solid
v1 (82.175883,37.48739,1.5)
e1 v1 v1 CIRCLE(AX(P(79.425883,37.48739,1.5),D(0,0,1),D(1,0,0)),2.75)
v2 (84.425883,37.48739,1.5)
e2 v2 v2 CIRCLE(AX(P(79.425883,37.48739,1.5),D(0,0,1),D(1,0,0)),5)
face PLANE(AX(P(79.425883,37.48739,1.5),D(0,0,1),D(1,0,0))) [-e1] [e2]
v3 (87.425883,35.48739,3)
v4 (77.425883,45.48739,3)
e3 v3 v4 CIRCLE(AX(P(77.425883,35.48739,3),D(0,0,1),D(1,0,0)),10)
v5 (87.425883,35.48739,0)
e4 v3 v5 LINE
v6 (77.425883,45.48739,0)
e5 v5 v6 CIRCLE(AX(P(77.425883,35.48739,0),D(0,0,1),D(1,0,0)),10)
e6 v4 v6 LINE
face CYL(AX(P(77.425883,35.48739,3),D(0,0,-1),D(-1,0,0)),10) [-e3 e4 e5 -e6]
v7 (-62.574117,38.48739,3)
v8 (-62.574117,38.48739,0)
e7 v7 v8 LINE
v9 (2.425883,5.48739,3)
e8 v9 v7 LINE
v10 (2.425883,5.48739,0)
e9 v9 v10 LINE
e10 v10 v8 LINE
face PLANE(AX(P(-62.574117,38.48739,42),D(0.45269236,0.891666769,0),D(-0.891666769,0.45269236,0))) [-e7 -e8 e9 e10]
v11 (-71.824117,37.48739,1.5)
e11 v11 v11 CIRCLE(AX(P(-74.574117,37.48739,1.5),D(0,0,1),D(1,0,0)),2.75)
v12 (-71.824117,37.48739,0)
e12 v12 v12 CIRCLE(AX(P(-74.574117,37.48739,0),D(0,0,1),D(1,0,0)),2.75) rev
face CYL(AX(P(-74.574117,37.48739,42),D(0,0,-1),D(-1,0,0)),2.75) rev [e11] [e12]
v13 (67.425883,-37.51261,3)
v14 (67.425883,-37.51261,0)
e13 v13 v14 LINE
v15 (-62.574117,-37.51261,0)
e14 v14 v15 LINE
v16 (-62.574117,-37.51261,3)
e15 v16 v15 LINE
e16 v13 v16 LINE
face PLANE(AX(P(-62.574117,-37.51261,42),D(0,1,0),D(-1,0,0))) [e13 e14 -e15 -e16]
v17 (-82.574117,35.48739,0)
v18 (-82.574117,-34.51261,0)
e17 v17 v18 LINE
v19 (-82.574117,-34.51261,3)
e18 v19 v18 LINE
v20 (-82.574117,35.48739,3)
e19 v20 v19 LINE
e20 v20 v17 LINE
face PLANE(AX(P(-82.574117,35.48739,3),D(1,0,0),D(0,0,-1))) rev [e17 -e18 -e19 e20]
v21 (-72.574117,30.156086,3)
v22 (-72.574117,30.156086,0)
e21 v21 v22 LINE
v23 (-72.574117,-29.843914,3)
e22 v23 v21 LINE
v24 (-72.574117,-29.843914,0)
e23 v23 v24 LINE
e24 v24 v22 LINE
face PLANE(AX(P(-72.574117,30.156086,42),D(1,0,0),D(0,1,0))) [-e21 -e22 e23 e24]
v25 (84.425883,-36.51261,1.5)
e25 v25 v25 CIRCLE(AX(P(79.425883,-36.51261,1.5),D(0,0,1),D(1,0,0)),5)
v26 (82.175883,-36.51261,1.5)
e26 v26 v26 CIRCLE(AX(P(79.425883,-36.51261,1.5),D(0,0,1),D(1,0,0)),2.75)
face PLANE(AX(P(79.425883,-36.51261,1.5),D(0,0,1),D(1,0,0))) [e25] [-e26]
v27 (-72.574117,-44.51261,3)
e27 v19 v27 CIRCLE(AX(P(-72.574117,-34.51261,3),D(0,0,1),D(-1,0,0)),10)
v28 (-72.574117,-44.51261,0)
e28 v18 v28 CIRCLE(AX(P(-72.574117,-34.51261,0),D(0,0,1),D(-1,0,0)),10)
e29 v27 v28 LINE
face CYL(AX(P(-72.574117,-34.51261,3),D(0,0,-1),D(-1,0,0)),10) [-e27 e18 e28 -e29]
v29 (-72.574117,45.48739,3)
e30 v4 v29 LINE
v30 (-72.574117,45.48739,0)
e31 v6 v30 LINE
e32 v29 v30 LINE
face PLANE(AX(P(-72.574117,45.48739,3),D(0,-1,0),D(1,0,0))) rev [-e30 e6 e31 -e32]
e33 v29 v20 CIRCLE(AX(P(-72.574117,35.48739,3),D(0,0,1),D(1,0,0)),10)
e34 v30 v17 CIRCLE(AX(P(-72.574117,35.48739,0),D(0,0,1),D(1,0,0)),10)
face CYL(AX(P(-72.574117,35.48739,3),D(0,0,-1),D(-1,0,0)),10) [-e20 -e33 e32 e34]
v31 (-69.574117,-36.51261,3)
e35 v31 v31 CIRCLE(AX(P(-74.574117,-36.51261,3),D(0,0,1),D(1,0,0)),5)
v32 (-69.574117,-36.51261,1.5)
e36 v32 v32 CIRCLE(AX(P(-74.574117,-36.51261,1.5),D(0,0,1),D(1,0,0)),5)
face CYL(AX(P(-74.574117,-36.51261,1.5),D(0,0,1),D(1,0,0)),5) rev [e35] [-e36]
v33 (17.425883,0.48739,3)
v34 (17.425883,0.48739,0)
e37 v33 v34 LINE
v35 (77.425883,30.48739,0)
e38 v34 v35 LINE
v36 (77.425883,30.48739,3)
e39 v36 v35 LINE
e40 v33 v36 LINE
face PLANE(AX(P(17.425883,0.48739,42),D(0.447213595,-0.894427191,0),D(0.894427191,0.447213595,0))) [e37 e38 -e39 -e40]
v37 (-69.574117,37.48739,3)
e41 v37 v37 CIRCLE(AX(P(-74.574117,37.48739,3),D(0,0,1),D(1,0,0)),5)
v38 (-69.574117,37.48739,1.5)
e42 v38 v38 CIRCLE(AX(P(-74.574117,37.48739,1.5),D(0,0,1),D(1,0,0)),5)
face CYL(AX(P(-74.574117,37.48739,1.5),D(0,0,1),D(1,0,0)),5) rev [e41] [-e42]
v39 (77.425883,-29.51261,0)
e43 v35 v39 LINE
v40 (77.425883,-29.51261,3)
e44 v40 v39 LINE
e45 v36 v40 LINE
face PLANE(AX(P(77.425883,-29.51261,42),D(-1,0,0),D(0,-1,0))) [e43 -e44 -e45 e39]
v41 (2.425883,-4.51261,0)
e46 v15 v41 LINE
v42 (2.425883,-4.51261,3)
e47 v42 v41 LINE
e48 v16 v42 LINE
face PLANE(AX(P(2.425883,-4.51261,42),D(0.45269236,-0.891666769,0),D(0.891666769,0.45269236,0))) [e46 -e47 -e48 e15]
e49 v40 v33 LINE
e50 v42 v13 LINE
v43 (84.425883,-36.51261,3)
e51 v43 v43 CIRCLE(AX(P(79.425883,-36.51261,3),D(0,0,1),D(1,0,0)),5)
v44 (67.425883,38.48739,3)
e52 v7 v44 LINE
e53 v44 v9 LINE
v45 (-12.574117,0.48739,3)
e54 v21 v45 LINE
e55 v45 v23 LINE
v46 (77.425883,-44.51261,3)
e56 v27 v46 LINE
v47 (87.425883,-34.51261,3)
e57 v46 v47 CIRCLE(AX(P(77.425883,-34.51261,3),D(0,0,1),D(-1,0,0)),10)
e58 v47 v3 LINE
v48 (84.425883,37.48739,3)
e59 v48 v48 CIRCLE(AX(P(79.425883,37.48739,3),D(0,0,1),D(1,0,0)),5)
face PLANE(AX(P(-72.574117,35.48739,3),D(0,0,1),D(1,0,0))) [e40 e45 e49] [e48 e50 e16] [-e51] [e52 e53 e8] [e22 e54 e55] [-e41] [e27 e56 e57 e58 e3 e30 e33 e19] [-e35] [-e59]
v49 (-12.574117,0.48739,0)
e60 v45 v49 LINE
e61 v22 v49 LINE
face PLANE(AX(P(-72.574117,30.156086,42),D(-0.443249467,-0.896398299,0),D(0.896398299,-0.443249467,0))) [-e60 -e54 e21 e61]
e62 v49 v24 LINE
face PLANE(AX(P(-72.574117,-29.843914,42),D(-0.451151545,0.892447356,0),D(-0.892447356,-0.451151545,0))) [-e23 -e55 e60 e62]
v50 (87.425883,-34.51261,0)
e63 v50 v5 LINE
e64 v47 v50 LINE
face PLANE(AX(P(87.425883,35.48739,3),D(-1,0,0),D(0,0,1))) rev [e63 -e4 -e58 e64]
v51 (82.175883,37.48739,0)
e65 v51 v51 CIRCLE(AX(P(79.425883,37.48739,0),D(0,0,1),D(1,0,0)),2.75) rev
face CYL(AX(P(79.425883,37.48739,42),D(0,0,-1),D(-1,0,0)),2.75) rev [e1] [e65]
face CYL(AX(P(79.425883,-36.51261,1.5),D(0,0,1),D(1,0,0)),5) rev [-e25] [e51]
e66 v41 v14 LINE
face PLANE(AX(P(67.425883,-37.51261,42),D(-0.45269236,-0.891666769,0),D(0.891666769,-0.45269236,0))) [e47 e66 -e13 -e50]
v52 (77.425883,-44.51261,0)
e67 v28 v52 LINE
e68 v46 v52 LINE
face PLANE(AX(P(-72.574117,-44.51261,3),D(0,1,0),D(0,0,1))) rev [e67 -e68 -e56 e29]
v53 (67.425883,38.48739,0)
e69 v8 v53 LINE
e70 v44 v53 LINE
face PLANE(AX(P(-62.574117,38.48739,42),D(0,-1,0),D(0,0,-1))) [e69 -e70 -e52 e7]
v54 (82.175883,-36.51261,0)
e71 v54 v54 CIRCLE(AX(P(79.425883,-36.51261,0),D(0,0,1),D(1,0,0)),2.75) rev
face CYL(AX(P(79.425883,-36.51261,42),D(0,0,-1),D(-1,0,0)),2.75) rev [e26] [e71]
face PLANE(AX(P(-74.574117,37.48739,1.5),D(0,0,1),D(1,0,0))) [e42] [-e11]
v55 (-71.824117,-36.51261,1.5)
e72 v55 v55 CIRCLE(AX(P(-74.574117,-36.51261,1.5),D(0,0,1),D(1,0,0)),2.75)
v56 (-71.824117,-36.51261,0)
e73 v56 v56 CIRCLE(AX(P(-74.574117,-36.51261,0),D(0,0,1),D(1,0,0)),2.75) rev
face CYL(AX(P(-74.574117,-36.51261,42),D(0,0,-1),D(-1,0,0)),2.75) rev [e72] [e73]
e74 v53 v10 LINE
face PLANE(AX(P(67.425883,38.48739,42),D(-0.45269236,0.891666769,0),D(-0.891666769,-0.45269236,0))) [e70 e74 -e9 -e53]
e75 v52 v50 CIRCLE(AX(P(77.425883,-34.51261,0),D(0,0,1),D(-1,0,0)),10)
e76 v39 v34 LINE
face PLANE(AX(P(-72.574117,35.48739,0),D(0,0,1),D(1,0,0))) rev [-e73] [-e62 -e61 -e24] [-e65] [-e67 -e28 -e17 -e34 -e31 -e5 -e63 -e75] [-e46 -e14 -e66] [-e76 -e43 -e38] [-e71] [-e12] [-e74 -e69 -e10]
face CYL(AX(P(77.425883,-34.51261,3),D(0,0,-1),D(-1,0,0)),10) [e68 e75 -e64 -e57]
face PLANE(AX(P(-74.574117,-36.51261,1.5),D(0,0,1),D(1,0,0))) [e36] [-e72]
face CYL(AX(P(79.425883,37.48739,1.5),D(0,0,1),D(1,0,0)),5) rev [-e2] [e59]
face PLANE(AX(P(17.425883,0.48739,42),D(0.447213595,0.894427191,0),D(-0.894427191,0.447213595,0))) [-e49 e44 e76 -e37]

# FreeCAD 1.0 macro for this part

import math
import FreeCAD as App
import Part
import Sketcher

V = App.Vector
Q = App.Units.Quantity


def add_polygon(sketch, points):
    """Adds a closed chain of lines whose ends are joined by coincident constraints."""
    first, n = sketch.GeometryCount, len(points)
    for a, b in zip(points, points[1:] + points[:1]):
        sketch.addGeometry(Part.LineSegment(App.Vector(*a, 0), App.Vector(*b, 0)), False)
    for i in range(n):
        sketch.addConstraint(Sketcher.Constraint("Coincident", first + i, 2, first + (i + 1) % n, 1))

doc = App.newDocument("Part")
body = doc.addObject("PartDesign::Body", "Body")

# Sketch on XY plane
sketch1 = body.newObject("Sketcher::SketchObject", "Sketch")
sketch1.AttachmentSupport = (doc.getObject("XY_Plane"), [""])
sketch1.MapMode = "FlatFace"
sketch1.addGeometry([
    Part.LineSegment(V(77, 45, 0), V(-73, 45, 0)),  # 0
    Part.ArcOfCircle(Part.Circle(V(-73, 35, 0), V(0, 0, 1), 10), math.radians(90), math.radians(180)),  # 1
    Part.LineSegment(V(-83, 35, 0), V(-83, -35, 0)),  # 2
    Part.ArcOfCircle(Part.Circle(V(-73, -35, 0), V(0, 0, 1), 10), math.radians(180), math.radians(270)),  # 3
    Part.LineSegment(V(-73, -45, 0), V(77, -45, 0)),  # 4
    Part.ArcOfCircle(Part.Circle(V(77, -35, 0), V(0, 0, 1), 10), math.radians(-90), math.radians(0)),  # 5
    Part.LineSegment(V(87, -35, 0), V(87, 35, 0)),  # 6
    Part.ArcOfCircle(Part.Circle(V(77, 35, 0), V(0, 0, 1), 10), math.radians(0), math.radians(90)),  # 7
], False)
sketch1.addConstraint([
    Sketcher.Constraint("Tangent", 0, 2, 1, 1),
    Sketcher.Constraint("Tangent", 1, 2, 2, 1),
    Sketcher.Constraint("Tangent", 2, 2, 3, 1),
    Sketcher.Constraint("Tangent", 3, 2, 4, 1),
    Sketcher.Constraint("Tangent", 4, 2, 5, 1),
    Sketcher.Constraint("Tangent", 5, 2, 6, 1),
    Sketcher.Constraint("Tangent", 6, 2, 7, 1),
    Sketcher.Constraint("Tangent", 7, 2, 0, 1),
    Sketcher.Constraint("Horizontal", 0),
    Sketcher.Constraint("Vertical", 2),
    Sketcher.Constraint("Horizontal", 4),
    Sketcher.Constraint("Vertical", 6),
    Sketcher.Constraint("Equal", 1, 3),
    Sketcher.Constraint("Equal", 3, 5),
    Sketcher.Constraint("Equal", 5, 7),
    Sketcher.Constraint("Radius", 1, Q("10 mm")),
    Sketcher.Constraint("DistanceX", 0, 2, 0, 1, Q("150 mm")),
    Sketcher.Constraint("DistanceY", 2, 2, 2, 1, Q("70 mm")),
    Sketcher.Constraint("DistanceY", -1, 1, 1, 3, Q("35.48739 mm")),
    Sketcher.Constraint("DistanceX", 1, 3, -1, 1, Q("72.574117 mm")),
])
pad1 = body.newObject("PartDesign::Pad", "Pad")
pad1.Profile = sketch1
pad1.Length = 3

# Sketch on XY plane
sketch2 = body.newObject("Sketcher::SketchObject", "Sketch001")
sketch2.AttachmentSupport = (doc.getObject("XY_Plane"), [""])
sketch2.MapMode = "FlatFace"
sketch2.AttachmentOffset = App.Placement(V(0, 0, 3), App.Rotation())
sketch2.addGeometry(Part.Circle(V(-74.6, 37.5, 0), V(0, 0, 1), 2.8), False)  # 0
sketch2.addGeometry(Part.Circle(V(-74.6, -36.5, 0), V(0, 0, 1), 2.8), False)  # 1
sketch2.addGeometry(Part.Circle(V(79.4, 37.5, 0), V(0, 0, 1), 2.8), False)  # 2
sketch2.addGeometry(Part.Circle(V(79.4, -36.5, 0), V(0, 0, 1), 2.8), False)  # 3
add_polygon(sketch2, [(-62.6, 38.5), (2.4, 5.5), (67.4, 38.5)])  # lines 4-6
add_polygon(sketch2, [(-12.6, 0.5), (-72.6, 30.2), (-72.6, -29.8)])  # lines 7-9
add_polygon(sketch2, [(2.4, -4.5), (-62.6, -37.5), (67.4, -37.5)])  # lines 10-12
add_polygon(sketch2, [(77.4, 30.5), (17.4, 0.5), (77.4, -29.5)])  # lines 13-15
sketch2.addConstraint([
    Sketcher.Constraint("Horizontal", 6),
    Sketcher.Constraint("Vertical", 8),
    Sketcher.Constraint("Horizontal", 11),
    Sketcher.Constraint("Vertical", 15),
    Sketcher.Constraint("Equal", 0, 1),
    Sketcher.Constraint("Equal", 1, 2),
    Sketcher.Constraint("Equal", 2, 3),
    Sketcher.Constraint("Parallel", 5, 10),
    Sketcher.Constraint("Parallel", 4, 12),
    Sketcher.Constraint("Horizontal", 0, 3, 2, 3),
    Sketcher.Constraint("Horizontal", 1, 3, 3, 3),
    Sketcher.Constraint("Horizontal", 9, 2, 13, 2),
    Sketcher.Constraint("Vertical", 0, 3, 1, 3),
    Sketcher.Constraint("Vertical", 2, 3, 3, 3),
    Sketcher.Constraint("Vertical", 6, 2, 10, 2),
    Sketcher.Constraint("Vertical", 5, 2, 11, 2),
    Sketcher.Constraint("Vertical", 4, 2, 12, 2),
    Sketcher.Constraint("Equal", 8, 15),
    Sketcher.Constraint("Equal", 13, 14),
    Sketcher.Constraint("Diameter", 0, Q("5.5 mm")),
    Sketcher.Constraint("DistanceX", 6, 2, 6, 1, Q("130 mm")),
    Sketcher.Constraint("DistanceY", 8, 2, 8, 1, Q("60 mm")),
    Sketcher.Constraint("DistanceY", 1, 3, 0, 3, Q("74 mm")),
    Sketcher.Constraint("DistanceX", 0, 3, 2, 3, Q("154 mm")),
    Sketcher.Constraint("DistanceX", 0, 3, 4, 2, Q("77 mm")),
    Sketcher.Constraint("DistanceY", 4, 2, 0, 3, Q("32 mm")),
    Sketcher.Constraint("DistanceY", 2, 3, 5, 2, Q("1 mm")),
    Sketcher.Constraint("DistanceX", 0, 3, 7, 2, Q("2 mm")),
    Sketcher.Constraint("DistanceX", 9, 2, 4, 2, Q("15 mm")),
    Sketcher.Constraint("DistanceY", 9, 2, 4, 2, Q("5 mm")),
    Sketcher.Constraint("DistanceY", 10, 2, 1, 3, Q("1 mm")),
    Sketcher.Constraint("DistanceX", 4, 2, 13, 2, Q("15 mm")),
    Sketcher.Constraint("DistanceX", 14, 2, 3, 3, Q("2 mm")),
    Sketcher.Constraint("Distance", 7, Q("66.934531 mm")),
    Sketcher.Constraint("DistanceY", -1, 1, 0, 3, Q("37.48739 mm")),
    Sketcher.Constraint("DistanceX", 0, 3, -1, 1, Q("74.574117 mm")),
])
pocket1 = body.newObject("PartDesign::Pocket", "Pocket")
pocket1.Profile = sketch2
pocket1.Type = "ThroughAll"
pocket1.Midplane = True

# Sketch on XY plane
sketch3 = body.newObject("Sketcher::SketchObject", "Sketch002")
sketch3.AttachmentSupport = (doc.getObject("XY_Plane"), [""])
sketch3.MapMode = "FlatFace"
sketch3.AttachmentOffset = App.Placement(V(0, 0, 3), App.Rotation())
sketch3.addGeometry([
    Part.Circle(V(-75, 37, 0), V(0, 0, 1), 5),
    Part.Circle(V(79, 37, 0), V(0, 0, 1), 5),
    Part.Circle(V(79, -37, 0), V(0, 0, 1), 5),
    Part.Circle(V(-75, -37, 0), V(0, 0, 1), 5),
], False)
sketch3.addConstraint([
    Sketcher.Constraint("Equal", 0, 1),
    Sketcher.Constraint("Equal", 1, 2),
    Sketcher.Constraint("Equal", 2, 3),
    Sketcher.Constraint("Horizontal", 0, 3, 1, 3),
    Sketcher.Constraint("Horizontal", 2, 3, 3, 3),
    Sketcher.Constraint("Vertical", 1, 3, 2, 3),
    Sketcher.Constraint("Vertical", 0, 3, 3, 3),
    Sketcher.Constraint("Diameter", 0, Q("10 mm")),
    Sketcher.Constraint("DistanceX", 0, 3, 1, 3, Q("154 mm")),
    Sketcher.Constraint("DistanceY", 2, 3, 1, 3, Q("74 mm")),
    Sketcher.Constraint("DistanceY", -1, 1, 0, 3, Q("37.48739 mm")),
    Sketcher.Constraint("DistanceX", 0, 3, -1, 1, Q("74.574117 mm")),
])
pocket2 = body.newObject("PartDesign::Pocket", "Pocket001")
pocket2.Profile = sketch3
pocket2.Length = 1.5

doc.recompute()
